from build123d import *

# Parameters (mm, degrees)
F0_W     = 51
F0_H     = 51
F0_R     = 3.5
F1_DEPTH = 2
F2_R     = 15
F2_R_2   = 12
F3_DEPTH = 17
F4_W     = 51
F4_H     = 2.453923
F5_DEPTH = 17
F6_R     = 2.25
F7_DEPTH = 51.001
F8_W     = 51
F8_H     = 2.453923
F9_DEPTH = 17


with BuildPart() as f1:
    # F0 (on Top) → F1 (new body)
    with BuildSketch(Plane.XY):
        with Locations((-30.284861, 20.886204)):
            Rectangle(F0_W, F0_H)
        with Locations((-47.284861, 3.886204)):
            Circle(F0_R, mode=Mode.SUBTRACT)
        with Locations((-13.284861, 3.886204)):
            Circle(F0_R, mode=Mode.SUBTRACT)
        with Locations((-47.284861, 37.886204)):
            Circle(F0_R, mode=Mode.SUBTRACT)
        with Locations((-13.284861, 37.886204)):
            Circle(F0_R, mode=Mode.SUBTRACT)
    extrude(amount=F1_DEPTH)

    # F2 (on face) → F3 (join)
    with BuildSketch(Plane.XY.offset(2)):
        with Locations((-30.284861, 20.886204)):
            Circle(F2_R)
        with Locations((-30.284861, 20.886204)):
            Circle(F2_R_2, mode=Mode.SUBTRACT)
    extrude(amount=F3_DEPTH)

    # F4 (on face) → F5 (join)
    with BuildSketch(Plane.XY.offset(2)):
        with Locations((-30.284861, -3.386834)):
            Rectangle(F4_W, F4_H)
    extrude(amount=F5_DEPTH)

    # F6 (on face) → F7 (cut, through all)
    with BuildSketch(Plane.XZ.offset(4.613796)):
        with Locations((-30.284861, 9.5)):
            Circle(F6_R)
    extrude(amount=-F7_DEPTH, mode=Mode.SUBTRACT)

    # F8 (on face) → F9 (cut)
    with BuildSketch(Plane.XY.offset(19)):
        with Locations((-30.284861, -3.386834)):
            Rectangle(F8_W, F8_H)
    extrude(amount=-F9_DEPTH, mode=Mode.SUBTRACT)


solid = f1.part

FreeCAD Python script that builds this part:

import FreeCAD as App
import Part
import Sketcher

doc = App.newDocument("Part")
body = doc.addObject("PartDesign::Body", "Body")

sketch1 = body.newObject("Sketcher::SketchObject", "Sketch")
sketch1.AttachmentSupport = (doc.getObject("XY_Plane"), [""])
sketch1.MapMode = "FlatFace"
sketch1.addGeometry(Part.LineSegment(App.Vector(-55.784861, 46.386204, 0), App.Vector(-55.784861, -4.613796, 0)), False)
sketch1.addGeometry(Part.LineSegment(App.Vector(-55.784861, -4.613796, 0), App.Vector(-4.784861, -4.613796, 0)), False)
sketch1.addGeometry(Part.LineSegment(App.Vector(-4.784861, -4.613796, 0), App.Vector(-4.784861, 46.386204, 0)), False)
sketch1.addGeometry(Part.LineSegment(App.Vector(-4.784861, 46.386204, 0), App.Vector(-55.784861, 46.386204, 0)), False)
sketch1.addGeometry(Part.Circle(App.Vector(-47.284861, 3.886204, 0), App.Vector(0, 0, 1), 3.5), False)
sketch1.addGeometry(Part.Circle(App.Vector(-13.284861, 3.886204, 0), App.Vector(0, 0, 1), 3.5), False)
sketch1.addGeometry(Part.Circle(App.Vector(-47.284861, 37.886204, 0), App.Vector(0, 0, 1), 3.5), False)
sketch1.addGeometry(Part.Circle(App.Vector(-13.284861, 37.886204, 0), App.Vector(0, 0, 1), 3.5), False)
sketch1.addConstraint(Sketcher.Constraint("Coincident", 0, 2, 1, 1))
sketch1.addConstraint(Sketcher.Constraint("Coincident", 1, 2, 2, 1))
sketch1.addConstraint(Sketcher.Constraint("Coincident", 2, 2, 3, 1))
sketch1.addConstraint(Sketcher.Constraint("Coincident", 3, 2, 0, 1))
sketch1.addConstraint(Sketcher.Constraint("Vertical", 0))
sketch1.addConstraint(Sketcher.Constraint("Horizontal", 1))
sketch1.addConstraint(Sketcher.Constraint("Vertical", 2))
sketch1.addConstraint(Sketcher.Constraint("Horizontal", 3))
sketch1.addConstraint(Sketcher.Constraint("Equal", 4, 5))
sketch1.addConstraint(Sketcher.Constraint("Equal", 5, 6))
sketch1.addConstraint(Sketcher.Constraint("Equal", 6, 7))
sketch1.addConstraint(Sketcher.Constraint("Horizontal", 4, 3, 5, 3))
sketch1.addConstraint(Sketcher.Constraint("Horizontal", 6, 3, 7, 3))
sketch1.addConstraint(Sketcher.Constraint("Vertical", 4, 3, 6, 3))
sketch1.addConstraint(Sketcher.Constraint("Vertical", 5, 3, 7, 3))
sketch1.addConstraint(Sketcher.Constraint("Equal", 3, 0))
sketch1.addConstraint(Sketcher.Constraint("Diameter", 4, 7.0))
sketch1.addConstraint(Sketcher.Constraint("DistanceX", 1, 1, 1, 2, 51.0))
sketch1.addConstraint(Sketcher.Constraint("DistanceX", 4, 3, 5, 3, 34.0))
sketch1.addConstraint(Sketcher.Constraint("DistanceY", 4, 3, 6, 3, 34.0))
sketch1.addConstraint(Sketcher.Constraint("DistanceX", 0, 2, 4, 3, 8.5))
sketch1.addConstraint(Sketcher.Constraint("DistanceY", 0, 2, 4, 3, 8.5))
sketch1.addConstraint(Sketcher.Constraint("DistanceX", 4, 3, -1, 1, 47.284861))
sketch1.addConstraint(Sketcher.Constraint("DistanceY", -1, 1, 4, 3, 3.886204))
pad1 = body.newObject("PartDesign::Pad", "Pad")
pad1.Profile = sketch1
pad1.Length = 2

sketch2 = body.newObject("Sketcher::SketchObject", "Sketch001")
sketch2.AttachmentSupport = (doc.getObject("XY_Plane"), [""])
sketch2.MapMode = "FlatFace"
sketch2.AttachmentOffset = App.Placement(App.Vector(0, 0, 2), App.Rotation())
sketch2.addGeometry(Part.Circle(App.Vector(-30.284861, 20.886204, 0), App.Vector(0, 0, 1), 15), False)
sketch2.addGeometry(Part.Circle(App.Vector(-30.284861, 20.886204, 0), App.Vector(0, 0, 1), 12), False)
sketch2.addConstraint(Sketcher.Constraint("Coincident", 1, 3, 0, 3))
sketch2.addConstraint(Sketcher.Constraint("Diameter", 0, 30.0))
sketch2.addConstraint(Sketcher.Constraint("Diameter", 1, 24.0))
sketch2.addConstraint(Sketcher.Constraint("DistanceX", 0, 3, -1, 1, 30.284861))
sketch2.addConstraint(Sketcher.Constraint("DistanceY", -1, 1, 0, 3, 20.886204))
pad2 = body.newObject("PartDesign::Pad", "Pad001")
pad2.Profile = sketch2
pad2.Length = 17

sketch3 = body.newObject("Sketcher::SketchObject", "Sketch002")
sketch3.AttachmentSupport = (doc.getObject("XY_Plane"), [""])
sketch3.MapMode = "FlatFace"
sketch3.AttachmentOffset = App.Placement(App.Vector(0, 0, 2), App.Rotation())
sketch3.addGeometry(Part.LineSegment(App.Vector(-55.784861, -2.159873, 0), App.Vector(-55.784861, -4.613796, 0)), False)
sketch3.addGeometry(Part.LineSegment(App.Vector(-55.784861, -4.613796, 0), App.Vector(-4.784861, -4.613796, 0)), False)
sketch3.addGeometry(Part.LineSegment(App.Vector(-4.784861, -4.613796, 0), App.Vector(-4.784861, -2.159873, 0)), False)
sketch3.addGeometry(Part.LineSegment(App.Vector(-4.784861, -2.159873, 0), App.Vector(-55.784861, -2.159873, 0)), False)
sketch3.addConstraint(Sketcher.Constraint("Coincident", 0, 2, 1, 1))
sketch3.addConstraint(Sketcher.Constraint("Coincident", 1, 2, 2, 1))
sketch3.addConstraint(Sketcher.Constraint("Coincident", 2, 2, 3, 1))
sketch3.addConstraint(Sketcher.Constraint("Coincident", 3, 2, 0, 1))
sketch3.addConstraint(Sketcher.Constraint("Vertical", 0))
sketch3.addConstraint(Sketcher.Constraint("Horizontal", 1))
sketch3.addConstraint(Sketcher.Constraint("Vertical", 2))
sketch3.addConstraint(Sketcher.Constraint("Horizontal", 3))
sketch3.addConstraint(Sketcher.Constraint("DistanceX", 1, 1, 1, 2, 51.0))
sketch3.addConstraint(Sketcher.Constraint("DistanceY", 0, 2, 0, 1, 2.453923))
sketch3.addConstraint(Sketcher.Constraint("DistanceX", 0, 2, -1, 1, 55.784861))
sketch3.addConstraint(Sketcher.Constraint("DistanceY", 0, 2, -1, 1, 4.613796))
pad3 = body.newObject("PartDesign::Pad", "Pad002")
pad3.Profile = sketch3
pad3.Length = 17

sketch4 = body.newObject("Sketcher::SketchObject", "Sketch003")
sketch4.AttachmentSupport = (doc.getObject("XZ_Plane"), [""])
sketch4.MapMode = "FlatFace"
sketch4.AttachmentOffset = App.Placement(App.Vector(0, 0, 4.613796), App.Rotation())
sketch4.addGeometry(Part.Circle(App.Vector(-30.284861, 9.5, 0), App.Vector(0, 0, 1), 2.25), False)
sketch4.addConstraint(Sketcher.Constraint("Diameter", 0, 4.5))
sketch4.addConstraint(Sketcher.Constraint("DistanceY", -1, 1, 0, 3, 9.5))
sketch4.addConstraint(Sketcher.Constraint("DistanceX", 0, 3, -1, 1, 30.284861))
pocket1 = body.newObject("PartDesign::Pocket", "Pocket")
pocket1.Profile = sketch4
pocket1.Type = "ThroughAll"

sketch5 = body.newObject("Sketcher::SketchObject", "Sketch004")
sketch5.AttachmentSupport = (doc.getObject("XY_Plane"), [""])
sketch5.MapMode = "FlatFace"
sketch5.AttachmentOffset = App.Placement(App.Vector(0, 0, 19), App.Rotation())
sketch5.addGeometry(Part.LineSegment(App.Vector(-55.784861, -2.159873, 0), App.Vector(-55.784861, -4.613796, 0)), False)
sketch5.addGeometry(Part.LineSegment(App.Vector(-55.784861, -4.613796, 0), App.Vector(-4.784861, -4.613796, 0)), False)
sketch5.addGeometry(Part.LineSegment(App.Vector(-4.784861, -4.613796, 0), App.Vector(-4.784861, -2.159873, 0)), False)
sketch5.addGeometry(Part.LineSegment(App.Vector(-4.784861, -2.159873, 0), App.Vector(-55.784861, -2.159873, 0)), False)
sketch5.addConstraint(Sketcher.Constraint("Coincident", 0, 2, 1, 1))
sketch5.addConstraint(Sketcher.Constraint("Coincident", 1, 2, 2, 1))
sketch5.addConstraint(Sketcher.Constraint("Coincident", 2, 2, 3, 1))
sketch5.addConstraint(Sketcher.Constraint("Coincident", 3, 2, 0, 1))
sketch5.addConstraint(Sketcher.Constraint("Vertical", 0))
sketch5.addConstraint(Sketcher.Constraint("Horizontal", 1))
sketch5.addConstraint(Sketcher.Constraint("Vertical", 2))
sketch5.addConstraint(Sketcher.Constraint("Horizontal", 3))
sketch5.addConstraint(Sketcher.Constraint("DistanceX", 1, 1, 1, 2, 51.0))
sketch5.addConstraint(Sketcher.Constraint("DistanceY", 0, 2, 0, 1, 2.453923))
sketch5.addConstraint(Sketcher.Constraint("DistanceX", 0, 2, -1, 1, 55.784861))
sketch5.addConstraint(Sketcher.Constraint("DistanceY", 0, 2, -1, 1, 4.613796))
pocket2 = body.newObject("PartDesign::Pocket", "Pocket001")
pocket2.Profile = sketch5
pocket2.Length = 17

doc.recompute()
